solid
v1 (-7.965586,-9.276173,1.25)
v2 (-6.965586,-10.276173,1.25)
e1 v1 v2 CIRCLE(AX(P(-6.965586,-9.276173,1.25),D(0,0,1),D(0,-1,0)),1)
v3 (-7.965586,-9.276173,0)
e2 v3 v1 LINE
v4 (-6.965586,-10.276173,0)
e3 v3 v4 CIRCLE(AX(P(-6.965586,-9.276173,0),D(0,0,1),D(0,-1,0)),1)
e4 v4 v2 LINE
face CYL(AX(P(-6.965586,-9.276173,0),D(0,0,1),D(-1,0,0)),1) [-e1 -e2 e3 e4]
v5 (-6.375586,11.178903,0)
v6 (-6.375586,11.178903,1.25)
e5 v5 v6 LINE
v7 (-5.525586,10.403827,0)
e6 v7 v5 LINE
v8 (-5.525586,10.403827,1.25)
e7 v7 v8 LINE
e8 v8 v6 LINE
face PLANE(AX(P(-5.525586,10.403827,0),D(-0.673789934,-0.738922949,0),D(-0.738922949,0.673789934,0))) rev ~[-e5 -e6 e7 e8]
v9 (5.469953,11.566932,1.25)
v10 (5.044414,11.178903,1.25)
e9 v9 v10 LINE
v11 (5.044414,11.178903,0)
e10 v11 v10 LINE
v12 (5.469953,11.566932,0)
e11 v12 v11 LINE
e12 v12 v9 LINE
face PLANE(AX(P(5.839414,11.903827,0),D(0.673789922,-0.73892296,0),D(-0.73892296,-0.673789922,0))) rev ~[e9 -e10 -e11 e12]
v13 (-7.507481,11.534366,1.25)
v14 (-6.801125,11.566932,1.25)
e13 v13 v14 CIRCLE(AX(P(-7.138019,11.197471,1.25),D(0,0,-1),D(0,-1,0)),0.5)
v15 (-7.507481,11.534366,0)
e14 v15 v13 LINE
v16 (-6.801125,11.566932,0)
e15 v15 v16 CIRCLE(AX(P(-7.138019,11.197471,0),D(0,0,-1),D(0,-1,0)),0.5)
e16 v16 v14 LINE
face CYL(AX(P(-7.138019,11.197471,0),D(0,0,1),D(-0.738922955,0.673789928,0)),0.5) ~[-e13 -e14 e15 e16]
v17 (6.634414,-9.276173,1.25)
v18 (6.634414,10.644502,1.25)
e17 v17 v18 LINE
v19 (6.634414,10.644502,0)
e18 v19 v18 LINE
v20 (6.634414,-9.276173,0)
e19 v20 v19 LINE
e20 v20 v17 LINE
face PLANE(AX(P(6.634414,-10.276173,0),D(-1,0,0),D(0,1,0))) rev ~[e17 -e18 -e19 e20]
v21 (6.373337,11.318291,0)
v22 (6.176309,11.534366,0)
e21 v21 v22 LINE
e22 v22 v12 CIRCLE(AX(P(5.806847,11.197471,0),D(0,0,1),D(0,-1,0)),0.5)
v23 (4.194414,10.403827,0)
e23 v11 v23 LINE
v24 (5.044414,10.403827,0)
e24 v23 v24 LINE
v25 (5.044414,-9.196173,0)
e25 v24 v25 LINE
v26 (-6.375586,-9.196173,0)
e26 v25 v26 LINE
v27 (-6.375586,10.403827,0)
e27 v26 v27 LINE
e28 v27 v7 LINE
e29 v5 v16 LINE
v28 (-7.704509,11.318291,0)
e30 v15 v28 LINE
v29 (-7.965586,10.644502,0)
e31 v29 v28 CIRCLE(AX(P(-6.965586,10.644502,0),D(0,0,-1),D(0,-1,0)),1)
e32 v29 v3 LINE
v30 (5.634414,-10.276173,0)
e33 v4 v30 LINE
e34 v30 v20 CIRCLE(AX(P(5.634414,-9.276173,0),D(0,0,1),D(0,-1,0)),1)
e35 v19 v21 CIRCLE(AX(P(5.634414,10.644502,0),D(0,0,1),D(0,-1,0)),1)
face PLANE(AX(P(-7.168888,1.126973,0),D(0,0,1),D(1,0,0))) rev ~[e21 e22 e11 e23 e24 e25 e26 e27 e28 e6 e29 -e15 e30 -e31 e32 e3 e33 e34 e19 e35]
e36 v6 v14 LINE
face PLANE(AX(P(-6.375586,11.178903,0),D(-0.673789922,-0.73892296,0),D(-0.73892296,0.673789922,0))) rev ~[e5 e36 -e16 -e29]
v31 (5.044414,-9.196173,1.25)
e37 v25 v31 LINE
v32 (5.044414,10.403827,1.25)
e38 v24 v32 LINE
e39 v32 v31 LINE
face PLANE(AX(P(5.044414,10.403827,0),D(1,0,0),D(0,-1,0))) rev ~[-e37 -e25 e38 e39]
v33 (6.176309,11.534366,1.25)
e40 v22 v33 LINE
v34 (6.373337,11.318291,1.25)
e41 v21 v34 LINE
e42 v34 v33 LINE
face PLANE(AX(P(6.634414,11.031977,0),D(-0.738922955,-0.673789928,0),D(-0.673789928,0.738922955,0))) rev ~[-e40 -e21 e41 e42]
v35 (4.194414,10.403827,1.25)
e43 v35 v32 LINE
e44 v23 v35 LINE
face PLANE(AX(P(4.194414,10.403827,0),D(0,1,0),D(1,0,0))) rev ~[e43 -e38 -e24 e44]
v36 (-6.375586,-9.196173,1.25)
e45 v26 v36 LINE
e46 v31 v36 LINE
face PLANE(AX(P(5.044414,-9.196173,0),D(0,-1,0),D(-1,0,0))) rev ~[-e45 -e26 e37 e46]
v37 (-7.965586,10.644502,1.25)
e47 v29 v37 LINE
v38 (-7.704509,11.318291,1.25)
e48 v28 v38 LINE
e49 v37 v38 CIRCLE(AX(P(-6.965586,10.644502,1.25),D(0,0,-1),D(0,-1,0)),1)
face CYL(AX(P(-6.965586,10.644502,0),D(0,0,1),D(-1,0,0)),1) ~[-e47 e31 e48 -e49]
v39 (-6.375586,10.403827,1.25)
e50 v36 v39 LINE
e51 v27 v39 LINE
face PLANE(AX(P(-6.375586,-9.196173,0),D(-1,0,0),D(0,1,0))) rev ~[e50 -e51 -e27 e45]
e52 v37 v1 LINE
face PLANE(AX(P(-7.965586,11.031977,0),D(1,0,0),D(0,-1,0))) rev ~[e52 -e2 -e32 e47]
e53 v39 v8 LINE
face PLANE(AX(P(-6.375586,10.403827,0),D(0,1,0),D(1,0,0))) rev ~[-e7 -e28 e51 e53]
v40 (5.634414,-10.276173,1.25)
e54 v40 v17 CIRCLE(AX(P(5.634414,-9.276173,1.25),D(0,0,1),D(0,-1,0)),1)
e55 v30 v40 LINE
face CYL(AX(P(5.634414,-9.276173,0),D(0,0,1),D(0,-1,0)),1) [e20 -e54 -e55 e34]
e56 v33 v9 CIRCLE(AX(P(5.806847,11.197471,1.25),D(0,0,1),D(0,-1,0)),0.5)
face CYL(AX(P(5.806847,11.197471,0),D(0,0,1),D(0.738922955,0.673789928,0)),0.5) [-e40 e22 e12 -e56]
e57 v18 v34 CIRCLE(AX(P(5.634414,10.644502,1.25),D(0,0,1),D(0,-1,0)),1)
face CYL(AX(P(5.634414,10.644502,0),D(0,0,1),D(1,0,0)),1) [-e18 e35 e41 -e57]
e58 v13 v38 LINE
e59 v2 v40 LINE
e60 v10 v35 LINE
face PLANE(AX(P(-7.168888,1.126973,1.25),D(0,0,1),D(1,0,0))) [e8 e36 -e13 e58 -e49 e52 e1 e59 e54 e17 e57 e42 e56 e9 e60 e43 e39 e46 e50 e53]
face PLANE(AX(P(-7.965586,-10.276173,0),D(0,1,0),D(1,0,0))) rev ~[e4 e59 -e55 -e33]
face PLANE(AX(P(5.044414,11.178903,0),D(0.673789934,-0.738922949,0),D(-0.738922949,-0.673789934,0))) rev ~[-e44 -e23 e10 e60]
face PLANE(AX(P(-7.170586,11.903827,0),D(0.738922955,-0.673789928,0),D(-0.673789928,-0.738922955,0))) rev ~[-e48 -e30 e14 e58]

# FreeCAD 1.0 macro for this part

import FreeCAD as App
import Part
import Sketcher


def edges_at(feature, points):
    """Names of the edges that pass closest to the given points."""
    edges = feature.Shape.Edges
    near = lambda p: min(range(len(edges)), key=lambda i: edges[i].distToShape(Part.Vertex(*p))[0])
    return sorted({f"Edge{near(p) + 1}" for p in points})


def add_polygon(sketch, points):
    """Adds a closed chain of lines whose ends are joined by coincident constraints."""
    first, n = sketch.GeometryCount, len(points)
    for a, b in zip(points, points[1:] + points[:1]):
        sketch.addGeometry(Part.LineSegment(App.Vector(*a, 0), App.Vector(*b, 0)), False)
    for i in range(n):
        sketch.addConstraint(Sketcher.Constraint("Coincident", first + i, 2, first + (i + 1) % n, 1))

doc = App.newDocument("Part")
body = doc.addObject("PartDesign::Body", "Body")

# Sketch on XY plane
sketch1 = body.newObject("Sketcher::SketchObject", "Sketch")
sketch1.AttachmentSupport = (doc.getObject("XY_Plane"), [""])
sketch1.MapMode = "FlatFace"
add_polygon(sketch1, [(-7.965586, 11.031977), (-7.965586, -10.276173), (6.634414, -10.276173), (6.634414, 11.031977), (5.839414, 11.903827), (5.044414, 11.178903), (4.194414, 10.403827), (5.044414, 10.403827), (5.044414, -9.196173), (-6.375586, -9.196173), (-6.375586, 10.403827), (-5.525586, 10.403827), (-6.375586, 11.178903), (-7.170586, 11.903827)])  # lines 0-13
sketch1.addConstraint([
    Sketcher.Constraint("Vertical", 0),
    Sketcher.Constraint("Horizontal", 1),
    Sketcher.Constraint("Vertical", 2),
    Sketcher.Constraint("Horizontal", 6),
    Sketcher.Constraint("Vertical", 7),
    Sketcher.Constraint("Horizontal", 8),
    Sketcher.Constraint("Vertical", 9),
    Sketcher.Constraint("Horizontal", 10),
    Sketcher.Constraint("Perpendicular", 3, 4),
    Sketcher.Constraint("Parallel", 4, 5),
    Sketcher.Constraint("Parallel", 11, 12),
    Sketcher.Constraint("Perpendicular", 12, 13),
    Sketcher.Constraint("Horizontal", 6, 2, 9, 2),
    Sketcher.Constraint("Horizontal", 4, 2, 11, 2),
    Sketcher.Constraint("Horizontal", 3, 2, 12, 2),
    Sketcher.Constraint("Horizontal", 2, 2, 13, 2),
    Sketcher.Constraint("Vertical", 4, 2, 6, 2),
    Sketcher.Constraint("Vertical", 9, 2, 11, 2),
    Sketcher.Constraint("Equal", 6, 10),
    Sketcher.Constraint("DistanceX", 1, 1, 1, 2, 14.6),
    Sketcher.Constraint("DistanceY", 7, 2, 7, 1, 19.6),
    Sketcher.Constraint("DistanceX", 6, 1, 6, 2, 0.85),
    Sketcher.Constraint("DistanceX", 8, 2, 8, 1, 11.42),
    Sketcher.Constraint("DistanceY", 5, 2, 3, 2, 1.5),
    Sketcher.Constraint("DistanceY", 1, 2, 3, 2, 22.18),
    Sketcher.Constraint("DistanceX", 3, 2, 2, 2, 0.795),
    Sketcher.Constraint("DistanceX", 0, 2, -1, 1, 7.965586),
    Sketcher.Constraint("DistanceY", 0, 2, -1, 1, 10.276173),
])
pad1 = body.newObject("PartDesign::Pad", "Pad")
pad1.Profile = sketch1
pad1.Length = 1.25
doc.recompute()

fillet = body.newObject("PartDesign::Fillet", "Fillet")
fillet.Base = (pad1, edges_at(pad1, [(6.634, -10.276, 0.625), (-7.966, -10.276, 0.625)]))
fillet.Radius = 1
doc.recompute()

fillet2 = body.newObject("PartDesign::Fillet", "Fillet001")
fillet2.Base = (fillet, edges_at(fillet, [(-7.966, 11.032, 0.625), (6.634, 11.032, 0.625)]))
fillet2.Radius = 1
doc.recompute()

fillet3 = body.newObject("PartDesign::Fillet", "Fillet002")
fillet3.Base = (fillet2, edges_at(fillet2, [(5.839, 11.904, 0.625), (-7.171, 11.904, 0.625)]))
fillet3.Radius = 0.5

doc.recompute()
